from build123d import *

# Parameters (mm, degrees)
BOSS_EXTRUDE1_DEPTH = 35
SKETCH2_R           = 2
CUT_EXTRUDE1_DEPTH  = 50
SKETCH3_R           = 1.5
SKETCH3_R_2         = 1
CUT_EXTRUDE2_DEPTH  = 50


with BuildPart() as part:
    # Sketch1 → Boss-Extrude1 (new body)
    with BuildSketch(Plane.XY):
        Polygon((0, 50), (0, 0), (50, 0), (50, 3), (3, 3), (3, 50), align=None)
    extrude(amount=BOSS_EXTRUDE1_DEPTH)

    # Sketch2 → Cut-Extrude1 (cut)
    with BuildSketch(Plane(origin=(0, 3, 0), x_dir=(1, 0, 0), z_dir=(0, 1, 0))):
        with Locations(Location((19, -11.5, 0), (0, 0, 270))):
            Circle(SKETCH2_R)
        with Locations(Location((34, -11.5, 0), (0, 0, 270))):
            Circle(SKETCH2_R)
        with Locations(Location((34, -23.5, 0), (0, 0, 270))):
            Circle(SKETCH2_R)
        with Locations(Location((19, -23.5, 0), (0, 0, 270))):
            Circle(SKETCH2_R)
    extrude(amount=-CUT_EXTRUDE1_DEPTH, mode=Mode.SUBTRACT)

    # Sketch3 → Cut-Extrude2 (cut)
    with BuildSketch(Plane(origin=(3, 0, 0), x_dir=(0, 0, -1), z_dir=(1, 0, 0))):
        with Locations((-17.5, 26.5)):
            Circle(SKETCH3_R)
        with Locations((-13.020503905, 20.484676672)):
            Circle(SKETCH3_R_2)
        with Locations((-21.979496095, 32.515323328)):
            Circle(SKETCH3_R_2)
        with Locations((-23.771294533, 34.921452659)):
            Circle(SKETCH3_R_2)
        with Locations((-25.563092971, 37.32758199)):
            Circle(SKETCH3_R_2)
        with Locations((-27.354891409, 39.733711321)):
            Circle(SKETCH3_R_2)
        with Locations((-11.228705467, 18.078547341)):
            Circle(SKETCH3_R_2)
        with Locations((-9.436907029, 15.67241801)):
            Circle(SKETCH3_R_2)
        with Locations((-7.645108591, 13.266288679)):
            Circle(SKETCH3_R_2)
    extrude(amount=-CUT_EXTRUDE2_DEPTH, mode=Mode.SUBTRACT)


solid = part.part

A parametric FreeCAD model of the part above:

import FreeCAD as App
import Part
import Sketcher
from FreeCAD import Vector


def add_polygon(sketch, points):
    """Adds a closed chain of lines whose ends are joined by coincident constraints."""
    first, n = sketch.GeometryCount, len(points)
    for a, b in zip(points, points[1:] + points[:1]):
        sketch.addGeometry(Part.LineSegment(App.Vector(*a, 0), App.Vector(*b, 0)), False)
    for i in range(n):
        sketch.addConstraint(Sketcher.Constraint("Coincident", first + i, 2, first + (i + 1) % n, 1))

doc = App.newDocument("Part")
body = doc.addObject("PartDesign::Body", "Body")

sketch1 = body.newObject("Sketcher::SketchObject", "Sketch")
sketch1.AttachmentSupport = (doc.getObject("XY_Plane"), [""])
sketch1.MapMode = "FlatFace"
add_polygon(sketch1, [(0, 50), (0, 0), (50, 0), (50, 3), (3, 3), (3, 50)])
sketch1.addConstraint([
    Sketcher.Constraint("Vertical", 0),
    Sketcher.Constraint("Horizontal", 1),
    Sketcher.Constraint("Vertical", 2),
    Sketcher.Constraint("Horizontal", 3),
    Sketcher.Constraint("Vertical", 4),
    Sketcher.Constraint("Horizontal", 5),
    Sketcher.Constraint("Coincident", 0, 2, -1, 1),
    Sketcher.Constraint("Equal", 1, 0),
    Sketcher.Constraint("Equal", 5, 2),
    Sketcher.Constraint("DistanceX", 1, 1, 1, 2, 50.0),
    Sketcher.Constraint("DistanceX", 3, 2, 3, 1, 47.0),
])
pad1 = body.newObject("PartDesign::Pad", "Pad")
pad1.Profile = sketch1
pad1.Length = 35

sketch2 = body.newObject("Sketcher::SketchObject", "Sketch001")
sketch2.AttachmentSupport = (doc.getObject("XZ_Plane"), [""])
sketch2.MapMode = "FlatFace"
sketch2.AttachmentOffset = App.Placement(Vector(0, 0, -3), App.Rotation())
sketch2.addGeometry([
    Part.Circle(Vector(19, 11.5, 0), Vector(0, 0, 1), 2),
    Part.Circle(Vector(34, 11.5, 0), Vector(0, 0, 1), 2),
    Part.Circle(Vector(34, 23.5, 0), Vector(0, 0, 1), 2),
    Part.Circle(Vector(19, 23.5, 0), Vector(0, 0, 1), 2),
], False)
sketch2.addConstraint([
    Sketcher.Constraint("Equal", 0, 1),
    Sketcher.Constraint("Equal", 1, 2),
    Sketcher.Constraint("Equal", 2, 3),
    Sketcher.Constraint("Horizontal", 0, 3, 1, 3),
    Sketcher.Constraint("Horizontal", 2, 3, 3, 3),
    Sketcher.Constraint("Vertical", 1, 3, 2, 3),
    Sketcher.Constraint("Vertical", 0, 3, 3, 3),
    Sketcher.Constraint("Diameter", 0, 4.0),
    Sketcher.Constraint("DistanceX", -1, 1, 0, 3, 19.0),
    Sketcher.Constraint("DistanceX", -1, 1, 1, 3, 34.0),
    Sketcher.Constraint("DistanceY", 1, 3, 2, 3, 12.0),
    Sketcher.Constraint("DistanceY", -1, 1, 0, 3, 11.5),
])
pocket1 = body.newObject("PartDesign::Pocket", "Pocket")
pocket1.Profile = sketch2
pocket1.Length = 50
pocket1.Reversed = True

sketch3 = body.newObject("Sketcher::SketchObject", "Sketch002")
sketch3.AttachmentSupport = (doc.getObject("YZ_Plane"), [""])
sketch3.MapMode = "FlatFace"
sketch3.AttachmentOffset = App.Placement(Vector(0, 0, 3), App.Rotation())
sketch3.addGeometry([
    Part.Circle(Vector(26.5, 17.5, 0), Vector(0, 0, 1), 1.5),
    Part.Circle(Vector(20.5, 13, 0), Vector(0, 0, 1), 1),
    Part.Circle(Vector(32.5, 22, 0), Vector(0, 0, 1), 1),
    Part.Circle(Vector(34.9, 23.8, 0), Vector(0, 0, 1), 1),
    Part.Circle(Vector(37.3, 25.6, 0), Vector(0, 0, 1), 1),
    Part.Circle(Vector(39.7, 27.4, 0), Vector(0, 0, 1), 1),
    Part.Circle(Vector(18.1, 11.2, 0), Vector(0, 0, 1), 1),
    Part.Circle(Vector(15.7, 9.4, 0), Vector(0, 0, 1), 1),
    Part.Circle(Vector(13.3, 7.6, 0), Vector(0, 0, 1), 1),
], False)
sketch3.addConstraint([
    Sketcher.Constraint("Equal", 1, 2),
    Sketcher.Constraint("Equal", 2, 3),
    Sketcher.Constraint("Equal", 3, 4),
    Sketcher.Constraint("Equal", 4, 5),
    Sketcher.Constraint("Equal", 5, 6),
    Sketcher.Constraint("Equal", 6, 7),
    Sketcher.Constraint("Equal", 7, 8),
    Sketcher.Constraint("Diameter", 0, 3.0),
    Sketcher.Constraint("Diameter", 1, 2.0),
    Sketcher.Constraint("DistanceX", -1, 1, 0, 3, 26.5),
    Sketcher.Constraint("DistanceY", -1, 1, 0, 3, 17.5),
    Sketcher.Constraint("DistanceY", 2, 3, 3, 3, 1.791798),
    Sketcher.Constraint("DistanceY", 3, 3, 4, 3, 1.791798),
    Sketcher.Constraint("DistanceY", 4, 3, 5, 3, 1.791798),
    Sketcher.Constraint("DistanceY", 6, 3, 1, 3, 1.791798),
    Sketcher.Constraint("DistanceY", 7, 3, 6, 3, 1.791798),
    Sketcher.Constraint("DistanceY", 8, 3, 7, 3, 1.791798),
    Sketcher.Constraint("DistanceX", -1, 1, 4, 3, 37.327582),
    Sketcher.Constraint("DistanceX", -1, 1, 5, 3, 39.733711),
    Sketcher.Constraint("DistanceY", -1, 1, 5, 3, 27.354891),
    Sketcher.Constraint("DistanceX", -1, 1, 7, 3, 15.672418),
    Sketcher.Constraint("DistanceX", -1, 1, 8, 3, 13.266289),
    Sketcher.Constraint("DistanceY", -1, 1, 8, 3, 7.645109),
    Sketcher.Constraint("DistanceX", 2, 3, 3, 3, 2.406129),
    Sketcher.Constraint("DistanceX", 3, 3, 4, 3, 2.406129),
    Sketcher.Constraint("DistanceX", 6, 3, 1, 3, 2.406129),
    Sketcher.Constraint("DistanceX", 7, 3, 6, 3, 2.406129),
])
pocket2 = body.newObject("PartDesign::Pocket", "Pocket001")
pocket2.Profile = sketch3
pocket2.Length = 50

doc.recompute()
